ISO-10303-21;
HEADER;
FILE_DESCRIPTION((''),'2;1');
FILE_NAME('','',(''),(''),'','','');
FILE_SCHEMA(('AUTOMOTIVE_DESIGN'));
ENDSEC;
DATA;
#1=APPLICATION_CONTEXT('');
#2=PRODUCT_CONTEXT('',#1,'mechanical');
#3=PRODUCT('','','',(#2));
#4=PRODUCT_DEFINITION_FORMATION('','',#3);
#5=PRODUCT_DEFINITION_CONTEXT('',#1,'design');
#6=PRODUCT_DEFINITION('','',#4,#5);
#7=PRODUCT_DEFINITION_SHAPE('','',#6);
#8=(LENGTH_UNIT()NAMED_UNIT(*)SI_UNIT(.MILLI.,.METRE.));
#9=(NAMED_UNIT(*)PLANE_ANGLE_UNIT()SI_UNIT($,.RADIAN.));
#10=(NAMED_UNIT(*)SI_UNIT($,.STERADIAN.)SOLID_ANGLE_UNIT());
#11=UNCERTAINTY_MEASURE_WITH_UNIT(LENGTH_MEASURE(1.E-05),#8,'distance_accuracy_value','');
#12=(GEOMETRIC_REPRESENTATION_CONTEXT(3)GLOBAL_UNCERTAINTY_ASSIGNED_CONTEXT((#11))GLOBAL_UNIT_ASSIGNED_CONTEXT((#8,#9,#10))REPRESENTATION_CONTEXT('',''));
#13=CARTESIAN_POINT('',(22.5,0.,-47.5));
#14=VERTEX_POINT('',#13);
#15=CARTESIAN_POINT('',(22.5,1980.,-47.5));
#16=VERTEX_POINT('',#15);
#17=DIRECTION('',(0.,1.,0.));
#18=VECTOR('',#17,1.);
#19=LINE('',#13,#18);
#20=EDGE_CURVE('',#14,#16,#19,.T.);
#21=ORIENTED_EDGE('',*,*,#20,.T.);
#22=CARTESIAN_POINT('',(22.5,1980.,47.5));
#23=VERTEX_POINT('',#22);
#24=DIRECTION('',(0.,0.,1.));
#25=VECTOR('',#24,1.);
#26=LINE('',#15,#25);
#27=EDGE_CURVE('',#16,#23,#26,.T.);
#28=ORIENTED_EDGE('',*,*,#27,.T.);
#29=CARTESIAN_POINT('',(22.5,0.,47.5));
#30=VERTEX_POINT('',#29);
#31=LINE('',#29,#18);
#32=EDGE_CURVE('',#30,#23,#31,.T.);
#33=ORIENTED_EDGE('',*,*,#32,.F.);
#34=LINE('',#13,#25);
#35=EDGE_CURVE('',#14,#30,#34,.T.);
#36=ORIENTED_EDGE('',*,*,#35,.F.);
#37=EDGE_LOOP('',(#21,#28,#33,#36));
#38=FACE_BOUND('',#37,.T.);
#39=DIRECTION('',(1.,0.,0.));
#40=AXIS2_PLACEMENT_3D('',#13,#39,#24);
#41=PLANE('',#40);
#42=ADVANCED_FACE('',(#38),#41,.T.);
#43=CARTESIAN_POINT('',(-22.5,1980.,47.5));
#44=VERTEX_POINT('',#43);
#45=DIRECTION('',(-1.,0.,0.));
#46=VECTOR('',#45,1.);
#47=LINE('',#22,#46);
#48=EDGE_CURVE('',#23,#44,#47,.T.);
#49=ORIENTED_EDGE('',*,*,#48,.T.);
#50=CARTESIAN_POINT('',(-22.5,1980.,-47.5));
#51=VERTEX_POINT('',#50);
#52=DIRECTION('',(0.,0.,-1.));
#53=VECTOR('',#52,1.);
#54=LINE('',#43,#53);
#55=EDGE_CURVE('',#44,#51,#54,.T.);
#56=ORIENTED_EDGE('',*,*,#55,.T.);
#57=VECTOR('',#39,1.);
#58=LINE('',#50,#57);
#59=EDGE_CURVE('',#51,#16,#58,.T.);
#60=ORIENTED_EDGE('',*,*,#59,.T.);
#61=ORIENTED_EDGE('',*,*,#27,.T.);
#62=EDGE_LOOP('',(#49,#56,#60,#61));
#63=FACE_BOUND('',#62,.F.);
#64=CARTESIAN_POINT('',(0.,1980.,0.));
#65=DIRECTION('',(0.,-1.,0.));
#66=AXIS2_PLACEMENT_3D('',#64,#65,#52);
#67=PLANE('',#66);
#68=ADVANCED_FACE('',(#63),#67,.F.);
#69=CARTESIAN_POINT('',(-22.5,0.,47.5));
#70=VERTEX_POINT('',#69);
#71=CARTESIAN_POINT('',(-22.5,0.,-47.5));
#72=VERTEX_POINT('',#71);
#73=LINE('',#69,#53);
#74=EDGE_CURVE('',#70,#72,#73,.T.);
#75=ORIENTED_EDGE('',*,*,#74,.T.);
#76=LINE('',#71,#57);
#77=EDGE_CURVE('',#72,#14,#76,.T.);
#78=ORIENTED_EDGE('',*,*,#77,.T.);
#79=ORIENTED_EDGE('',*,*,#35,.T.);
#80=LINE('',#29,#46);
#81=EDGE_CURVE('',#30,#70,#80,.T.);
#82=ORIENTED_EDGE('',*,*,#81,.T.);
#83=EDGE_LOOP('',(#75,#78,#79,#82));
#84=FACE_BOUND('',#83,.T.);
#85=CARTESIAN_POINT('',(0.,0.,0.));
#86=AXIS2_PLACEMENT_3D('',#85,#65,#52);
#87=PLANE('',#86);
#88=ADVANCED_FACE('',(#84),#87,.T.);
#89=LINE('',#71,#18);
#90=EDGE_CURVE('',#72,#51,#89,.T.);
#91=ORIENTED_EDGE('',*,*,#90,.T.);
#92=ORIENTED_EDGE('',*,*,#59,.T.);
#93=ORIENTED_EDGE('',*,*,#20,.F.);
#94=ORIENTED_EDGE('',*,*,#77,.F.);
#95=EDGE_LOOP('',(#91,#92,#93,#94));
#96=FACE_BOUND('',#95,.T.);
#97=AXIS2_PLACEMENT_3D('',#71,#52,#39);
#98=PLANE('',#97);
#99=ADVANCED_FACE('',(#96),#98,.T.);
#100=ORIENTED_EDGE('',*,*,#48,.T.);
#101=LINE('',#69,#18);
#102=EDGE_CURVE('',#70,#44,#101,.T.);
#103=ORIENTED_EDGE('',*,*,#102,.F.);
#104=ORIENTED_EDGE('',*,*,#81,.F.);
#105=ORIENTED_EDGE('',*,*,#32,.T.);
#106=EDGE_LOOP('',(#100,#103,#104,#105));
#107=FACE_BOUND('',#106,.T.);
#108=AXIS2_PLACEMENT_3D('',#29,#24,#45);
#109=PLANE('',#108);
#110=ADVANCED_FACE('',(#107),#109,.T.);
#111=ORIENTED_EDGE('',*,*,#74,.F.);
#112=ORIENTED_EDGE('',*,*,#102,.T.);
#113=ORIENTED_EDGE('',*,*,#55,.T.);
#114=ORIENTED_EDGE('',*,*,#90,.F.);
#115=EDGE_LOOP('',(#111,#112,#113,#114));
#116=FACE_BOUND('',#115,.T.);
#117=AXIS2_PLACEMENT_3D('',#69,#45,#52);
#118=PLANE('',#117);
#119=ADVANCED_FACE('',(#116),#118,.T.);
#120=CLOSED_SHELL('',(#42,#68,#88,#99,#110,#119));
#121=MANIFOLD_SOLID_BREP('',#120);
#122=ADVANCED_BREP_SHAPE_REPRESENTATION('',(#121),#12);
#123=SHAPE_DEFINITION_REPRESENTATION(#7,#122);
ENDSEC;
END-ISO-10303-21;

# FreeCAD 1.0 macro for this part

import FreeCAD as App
import Part
import Sketcher
Q = App.Units.Quantity

doc = App.newDocument("Part")
body = doc.addObject("PartDesign::Body", "Body")

sketch1 = body.newObject("Sketcher::SketchObject", "Sketch")
sketch1.AttachmentSupport = (doc.getObject("XZ_Plane"), [""])
sketch1.MapMode = "FlatFace"
sketch1.addGeometry([
    Part.LineSegment(App.Vector(-22.5, 47.5, 0), App.Vector(-22.5, -47.5, 0)),
    Part.LineSegment(App.Vector(-22.5, -47.5, 0), App.Vector(22.5, -47.5, 0)),
    Part.LineSegment(App.Vector(22.5, -47.5, 0), App.Vector(22.5, 47.5, 0)),
    Part.LineSegment(App.Vector(22.5, 47.5, 0), App.Vector(-22.5, 47.5, 0)),
], False)
sketch1.addConstraint([
    Sketcher.Constraint("Coincident", 0, 2, 1, 1),
    Sketcher.Constraint("Coincident", 1, 2, 2, 1),
    Sketcher.Constraint("Coincident", 2, 2, 3, 1),
    Sketcher.Constraint("Coincident", 3, 2, 0, 1),
    Sketcher.Constraint("Vertical", 0),
    Sketcher.Constraint("Horizontal", 1),
    Sketcher.Constraint("Vertical", 2),
    Sketcher.Constraint("Horizontal", 3),
    Sketcher.Constraint("Symmetric", 0, 2, 2, 2, -1, 1),
    Sketcher.Constraint("DistanceX", 1, 1, 1, 2, Q("45 mm")),
    Sketcher.Constraint("DistanceY", 0, 2, 0, 1, Q("95 mm")),
])
pad1 = body.newObject("PartDesign::Pad", "Pad")
pad1.Profile = sketch1
pad1.Length = 1980
pad1.Reversed = True

doc.recompute()
